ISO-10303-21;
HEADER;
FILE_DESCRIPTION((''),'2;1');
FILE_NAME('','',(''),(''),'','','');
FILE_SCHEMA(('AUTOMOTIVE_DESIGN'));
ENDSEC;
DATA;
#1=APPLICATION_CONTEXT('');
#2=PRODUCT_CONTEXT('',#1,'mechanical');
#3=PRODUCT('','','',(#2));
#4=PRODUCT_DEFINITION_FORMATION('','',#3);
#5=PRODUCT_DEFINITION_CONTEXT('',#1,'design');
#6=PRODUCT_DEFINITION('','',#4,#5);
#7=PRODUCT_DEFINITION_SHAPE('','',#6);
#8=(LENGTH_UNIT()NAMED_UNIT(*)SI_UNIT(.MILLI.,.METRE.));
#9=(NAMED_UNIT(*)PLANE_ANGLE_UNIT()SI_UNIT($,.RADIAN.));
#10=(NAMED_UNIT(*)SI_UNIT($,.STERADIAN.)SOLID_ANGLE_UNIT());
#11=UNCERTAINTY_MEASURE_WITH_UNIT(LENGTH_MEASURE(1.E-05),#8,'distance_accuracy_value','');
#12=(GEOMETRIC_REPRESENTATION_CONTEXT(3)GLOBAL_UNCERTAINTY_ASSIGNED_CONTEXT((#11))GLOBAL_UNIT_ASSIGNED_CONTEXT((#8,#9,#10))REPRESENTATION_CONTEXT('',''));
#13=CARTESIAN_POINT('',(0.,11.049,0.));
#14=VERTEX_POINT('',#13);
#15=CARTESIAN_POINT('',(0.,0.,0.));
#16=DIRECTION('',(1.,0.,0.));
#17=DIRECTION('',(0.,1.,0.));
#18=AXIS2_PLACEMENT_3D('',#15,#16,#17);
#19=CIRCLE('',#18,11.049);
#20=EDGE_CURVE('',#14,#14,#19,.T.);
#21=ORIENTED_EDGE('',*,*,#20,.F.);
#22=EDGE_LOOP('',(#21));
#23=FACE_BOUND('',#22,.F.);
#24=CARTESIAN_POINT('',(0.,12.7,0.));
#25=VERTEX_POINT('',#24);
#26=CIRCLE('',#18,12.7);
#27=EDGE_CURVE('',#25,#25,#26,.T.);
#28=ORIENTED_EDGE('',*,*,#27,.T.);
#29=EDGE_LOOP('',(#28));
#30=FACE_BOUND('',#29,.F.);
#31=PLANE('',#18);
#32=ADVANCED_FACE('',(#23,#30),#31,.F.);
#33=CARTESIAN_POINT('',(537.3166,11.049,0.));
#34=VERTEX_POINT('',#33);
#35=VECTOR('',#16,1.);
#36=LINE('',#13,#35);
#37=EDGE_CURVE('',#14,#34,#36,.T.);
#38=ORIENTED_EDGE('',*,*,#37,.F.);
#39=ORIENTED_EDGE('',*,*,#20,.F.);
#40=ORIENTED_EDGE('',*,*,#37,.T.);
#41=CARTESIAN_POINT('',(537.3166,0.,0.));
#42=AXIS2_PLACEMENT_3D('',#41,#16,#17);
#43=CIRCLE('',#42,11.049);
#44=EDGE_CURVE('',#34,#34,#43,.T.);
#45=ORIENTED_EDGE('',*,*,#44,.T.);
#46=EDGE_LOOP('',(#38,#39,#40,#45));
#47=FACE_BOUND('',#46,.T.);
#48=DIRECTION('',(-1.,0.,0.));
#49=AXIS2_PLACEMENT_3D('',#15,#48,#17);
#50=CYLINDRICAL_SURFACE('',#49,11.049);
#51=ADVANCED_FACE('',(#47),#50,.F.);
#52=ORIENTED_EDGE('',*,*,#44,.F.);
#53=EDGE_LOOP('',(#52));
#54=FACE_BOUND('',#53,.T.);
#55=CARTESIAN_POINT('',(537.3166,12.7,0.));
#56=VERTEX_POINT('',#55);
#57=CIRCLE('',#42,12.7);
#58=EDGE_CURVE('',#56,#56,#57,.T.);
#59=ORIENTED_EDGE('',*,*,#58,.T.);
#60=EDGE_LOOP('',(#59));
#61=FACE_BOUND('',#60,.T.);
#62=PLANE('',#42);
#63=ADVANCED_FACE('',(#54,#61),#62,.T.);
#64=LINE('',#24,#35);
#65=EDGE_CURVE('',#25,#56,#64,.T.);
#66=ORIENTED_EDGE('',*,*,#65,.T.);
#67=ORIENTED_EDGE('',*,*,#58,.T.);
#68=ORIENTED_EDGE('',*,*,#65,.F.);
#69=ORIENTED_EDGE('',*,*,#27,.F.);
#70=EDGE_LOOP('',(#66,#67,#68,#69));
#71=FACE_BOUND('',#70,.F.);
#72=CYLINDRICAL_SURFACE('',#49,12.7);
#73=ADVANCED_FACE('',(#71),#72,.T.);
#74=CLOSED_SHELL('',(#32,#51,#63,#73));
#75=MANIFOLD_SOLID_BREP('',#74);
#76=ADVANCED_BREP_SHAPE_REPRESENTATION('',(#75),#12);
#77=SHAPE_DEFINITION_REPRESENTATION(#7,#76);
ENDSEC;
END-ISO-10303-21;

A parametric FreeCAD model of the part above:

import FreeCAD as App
import Part
import Sketcher
Q = App.Units.Quantity

doc = App.newDocument("Part")
params = doc.addObject("Spreadsheet::Sheet", "Params")
for row, (alias, value) in enumerate([
    ("sketch1_diameter", "1 in"),
    ("sketch1_diameter2", "0.87 in"),
    ("pad1_length", "21.1541969 in"),
], start=1):
    params.set(f"A{row}", alias)
    params.set(f"B{row}", "=" + value)
    params.setAlias(f"B{row}", alias)

body = doc.addObject("PartDesign::Body", "Body")

sketch1 = body.newObject("Sketcher::SketchObject", "Sketch")
sketch1.AttachmentSupport = (doc.getObject("YZ_Plane"), [""])
sketch1.MapMode = "FlatFace"
sketch1.addGeometry(Part.Circle(App.Vector(0, 0, 0), App.Vector(0, 0, 1), 12.7), False)
sketch1.addGeometry(Part.Circle(App.Vector(0, 0, 0), App.Vector(0, 0, 1), 11.049), False)
sketch1.addConstraint(Sketcher.Constraint("Coincident", 0, 3, -1, 1))
sketch1.addConstraint(Sketcher.Constraint("Coincident", 1, 3, -1, 1))
sketch1.addConstraint(Sketcher.Constraint("Diameter", 0, Q("1 in")))
sketch1.addConstraint(Sketcher.Constraint("Diameter", 1, Q("0.87 in")))
sketch1.setExpression("Constraints[2]", "Params.sketch1_diameter")
sketch1.setExpression("Constraints[3]", "Params.sketch1_diameter2")
pad1 = body.newObject("PartDesign::Pad", "Pad")
pad1.Profile = sketch1
pad1.setExpression("Length", "Params.pad1_length")

doc.recompute()
